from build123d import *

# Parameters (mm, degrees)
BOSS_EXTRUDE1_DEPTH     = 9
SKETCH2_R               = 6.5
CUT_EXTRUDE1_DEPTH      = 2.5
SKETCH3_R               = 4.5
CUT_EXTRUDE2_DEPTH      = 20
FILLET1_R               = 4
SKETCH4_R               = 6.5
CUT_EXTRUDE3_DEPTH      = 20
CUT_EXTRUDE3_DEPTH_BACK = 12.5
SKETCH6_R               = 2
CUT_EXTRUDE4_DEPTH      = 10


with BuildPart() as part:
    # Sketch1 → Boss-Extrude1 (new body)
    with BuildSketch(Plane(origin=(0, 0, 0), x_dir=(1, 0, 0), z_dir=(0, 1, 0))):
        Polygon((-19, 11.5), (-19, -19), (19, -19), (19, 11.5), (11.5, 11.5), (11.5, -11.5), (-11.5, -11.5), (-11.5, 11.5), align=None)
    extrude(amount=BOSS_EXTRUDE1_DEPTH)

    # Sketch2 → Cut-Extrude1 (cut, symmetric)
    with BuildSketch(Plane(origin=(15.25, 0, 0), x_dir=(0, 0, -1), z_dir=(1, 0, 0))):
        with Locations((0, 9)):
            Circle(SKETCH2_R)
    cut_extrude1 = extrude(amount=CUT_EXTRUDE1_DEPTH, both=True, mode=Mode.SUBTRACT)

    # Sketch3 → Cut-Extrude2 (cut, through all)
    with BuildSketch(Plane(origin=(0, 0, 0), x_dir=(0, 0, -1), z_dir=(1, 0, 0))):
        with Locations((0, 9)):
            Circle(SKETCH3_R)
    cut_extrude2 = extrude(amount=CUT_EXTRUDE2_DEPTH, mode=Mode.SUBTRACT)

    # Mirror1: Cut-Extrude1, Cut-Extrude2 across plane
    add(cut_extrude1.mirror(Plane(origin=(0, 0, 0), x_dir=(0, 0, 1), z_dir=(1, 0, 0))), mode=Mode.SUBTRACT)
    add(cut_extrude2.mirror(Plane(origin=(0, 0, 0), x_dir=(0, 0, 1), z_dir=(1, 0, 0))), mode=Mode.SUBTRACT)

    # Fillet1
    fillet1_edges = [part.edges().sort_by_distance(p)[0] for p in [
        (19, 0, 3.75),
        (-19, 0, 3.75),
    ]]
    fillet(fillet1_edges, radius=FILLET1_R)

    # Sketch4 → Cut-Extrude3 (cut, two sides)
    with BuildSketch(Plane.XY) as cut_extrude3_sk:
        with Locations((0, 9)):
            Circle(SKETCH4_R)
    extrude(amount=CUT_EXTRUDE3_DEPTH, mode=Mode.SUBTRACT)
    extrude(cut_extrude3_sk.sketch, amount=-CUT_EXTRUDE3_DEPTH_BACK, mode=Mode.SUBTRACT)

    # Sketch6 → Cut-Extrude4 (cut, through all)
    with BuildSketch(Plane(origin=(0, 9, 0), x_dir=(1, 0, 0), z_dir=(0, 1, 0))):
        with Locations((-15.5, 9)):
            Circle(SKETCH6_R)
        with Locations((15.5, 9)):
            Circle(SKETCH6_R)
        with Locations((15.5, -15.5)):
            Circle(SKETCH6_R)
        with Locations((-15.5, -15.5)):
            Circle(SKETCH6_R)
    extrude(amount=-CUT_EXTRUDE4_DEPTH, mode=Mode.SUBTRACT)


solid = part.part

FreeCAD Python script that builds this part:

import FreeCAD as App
import Part
import Sketcher


def edges_at(feature, points):
    """Names of the edges that pass closest to the given points."""
    edges = feature.Shape.Edges
    near = lambda p: min(range(len(edges)), key=lambda i: edges[i].distToShape(Part.Vertex(*p))[0])
    return sorted({f"Edge{near(p) + 1}" for p in points})


def add_polygon(sketch, points):
    """Adds a closed chain of lines whose ends are joined by coincident constraints."""
    first, n = sketch.GeometryCount, len(points)
    for a, b in zip(points, points[1:] + points[:1]):
        sketch.addGeometry(Part.LineSegment(App.Vector(*a, 0), App.Vector(*b, 0)), False)
    for i in range(n):
        sketch.addConstraint(Sketcher.Constraint("Coincident", first + i, 2, first + (i + 1) % n, 1))

doc = App.newDocument("Part")
body = doc.addObject("PartDesign::Body", "Body")

sketch1 = body.newObject("Sketcher::SketchObject", "Sketch")
sketch1.AttachmentSupport = (doc.getObject("XZ_Plane"), [""])
sketch1.MapMode = "FlatFace"
add_polygon(sketch1, [(-19, -11.5), (-19, 19), (19, 19), (19, -11.5), (11.5, -11.5), (11.5, 11.5), (-11.5, 11.5), (-11.5, -11.5)])
sketch1.addConstraint([
    Sketcher.Constraint("Vertical", 0),
    Sketcher.Constraint("Horizontal", 1),
    Sketcher.Constraint("Vertical", 2),
    Sketcher.Constraint("Horizontal", 3),
    Sketcher.Constraint("Vertical", 4),
    Sketcher.Constraint("Horizontal", 5),
    Sketcher.Constraint("Vertical", 6),
    Sketcher.Constraint("Horizontal", 7),
    Sketcher.Constraint("Symmetric", 3, 2, 5, 2, -1, 1),
    Sketcher.Constraint("Symmetric", 2, 2, 7, 2, -2),
    Sketcher.Constraint("Equal", 5, 4),
    Sketcher.Constraint("DistanceX", 1, 1, 1, 2, 38.0),
    Sketcher.Constraint("DistanceX", 5, 2, 5, 1, 23.0),
    Sketcher.Constraint("DistanceY", 0, 1, 0, 2, 30.5),
])
pad1 = body.newObject("PartDesign::Pad", "Pad")
pad1.Profile = sketch1
pad1.Length = 9
pad1.Reversed = True

sketch2 = body.newObject("Sketcher::SketchObject", "Sketch001")
sketch2.AttachmentSupport = (doc.getObject("YZ_Plane"), [""])
sketch2.MapMode = "FlatFace"
sketch2.AttachmentOffset = App.Placement(App.Vector(0, 0, 15.25), App.Rotation())
sketch2.addGeometry(Part.Circle(App.Vector(9, 0, 0), App.Vector(0, 0, 1), 6.5), False)
sketch2.addConstraint([
    Sketcher.Constraint("PointOnObject", 0, 3, -1),
    Sketcher.Constraint("Diameter", 0, 13.0),
    Sketcher.Constraint("DistanceX", -1, 1, 0, 3, 9.0),
])
pocket1 = body.newObject("PartDesign::Pocket", "Pocket")
pocket1.Profile = sketch2
pocket1.Length = 5
pocket1.Midplane = True

sketch3 = body.newObject("Sketcher::SketchObject", "Sketch002")
sketch3.AttachmentSupport = (doc.getObject("YZ_Plane"), [""])
sketch3.MapMode = "FlatFace"
sketch3.addGeometry(Part.Circle(App.Vector(9, 0, 0), App.Vector(0, 0, 1), 4.5), False)
sketch3.addConstraint([
    Sketcher.Constraint("PointOnObject", 0, 3, -1),
    Sketcher.Constraint("Diameter", 0, 9.0),
    Sketcher.Constraint("DistanceX", -1, 1, 0, 3, 9.0),
])
pocket2 = body.newObject("PartDesign::Pocket", "Pocket001")
pocket2.Profile = sketch3
pocket2.Type = "ThroughAll"
pocket2.Reversed = True
doc.recompute()

mirrored = body.newObject("PartDesign::Mirrored", "Mirrored")
mirrored.Originals = [pocket1, pocket2]
mirrored.MirrorPlane = (doc.getObject("YZ_Plane"), [""])
body.Tip = mirrored
doc.recompute()

fillet = body.newObject("PartDesign::Fillet", "Fillet")
fillet.Base = (mirrored, edges_at(mirrored, [(19, 0, 3.75), (-19, 0, 3.75)]))
fillet.Radius = 4

sketch4 = body.newObject("Sketcher::SketchObject", "Sketch003")
sketch4.AttachmentSupport = (doc.getObject("XY_Plane"), [""])
sketch4.MapMode = "FlatFace"
sketch4.addGeometry(Part.Circle(App.Vector(0, 9, 0), App.Vector(0, 0, 1), 6.5), False)
sketch4.addConstraint([
    Sketcher.Constraint("PointOnObject", 0, 3, -2),
    Sketcher.Constraint("Diameter", 0, 13.0),
    Sketcher.Constraint("DistanceY", -1, 1, 0, 3, 9.0),
])
pocket3 = body.newObject("PartDesign::Pocket", "Pocket002")
pocket3.Profile = sketch4
pocket3.Type = "ThroughAll"
pocket3.Midplane = True

sketch5 = body.newObject("Sketcher::SketchObject", "Sketch004")
sketch5.AttachmentSupport = (doc.getObject("XZ_Plane"), [""])
sketch5.MapMode = "FlatFace"
sketch5.AttachmentOffset = App.Placement(App.Vector(0, 0, -9), App.Rotation())
sketch5.addGeometry([
    Part.Circle(App.Vector(-15.5, -9, 0), App.Vector(0, 0, 1), 2),
    Part.Circle(App.Vector(15.5, -9, 0), App.Vector(0, 0, 1), 2),
    Part.Circle(App.Vector(15.5, 15.5, 0), App.Vector(0, 0, 1), 2),
    Part.Circle(App.Vector(-15.5, 15.5, 0), App.Vector(0, 0, 1), 2),
], False)
sketch5.addConstraint([
    Sketcher.Constraint("Equal", 0, 1),
    Sketcher.Constraint("Equal", 1, 2),
    Sketcher.Constraint("Equal", 2, 3),
    Sketcher.Constraint("Symmetric", 0, 3, 1, 3, -2),
    Sketcher.Constraint("Symmetric", 2, 3, 3, 3, -2),
    Sketcher.Constraint("Vertical", 1, 3, 2, 3),
    Sketcher.Constraint("Diameter", 0, 4.0),
    Sketcher.Constraint("DistanceY", 0, 3, -1, 1, 9.0),
    Sketcher.Constraint("DistanceX", 0, 3, 1, 3, 31.0),
    Sketcher.Constraint("DistanceY", -1, 1, 2, 3, 15.5),
])
pocket4 = body.newObject("PartDesign::Pocket", "Pocket003")
pocket4.Profile = sketch5
pocket4.Type = "ThroughAll"
pocket4.Reversed = True

doc.recompute()
